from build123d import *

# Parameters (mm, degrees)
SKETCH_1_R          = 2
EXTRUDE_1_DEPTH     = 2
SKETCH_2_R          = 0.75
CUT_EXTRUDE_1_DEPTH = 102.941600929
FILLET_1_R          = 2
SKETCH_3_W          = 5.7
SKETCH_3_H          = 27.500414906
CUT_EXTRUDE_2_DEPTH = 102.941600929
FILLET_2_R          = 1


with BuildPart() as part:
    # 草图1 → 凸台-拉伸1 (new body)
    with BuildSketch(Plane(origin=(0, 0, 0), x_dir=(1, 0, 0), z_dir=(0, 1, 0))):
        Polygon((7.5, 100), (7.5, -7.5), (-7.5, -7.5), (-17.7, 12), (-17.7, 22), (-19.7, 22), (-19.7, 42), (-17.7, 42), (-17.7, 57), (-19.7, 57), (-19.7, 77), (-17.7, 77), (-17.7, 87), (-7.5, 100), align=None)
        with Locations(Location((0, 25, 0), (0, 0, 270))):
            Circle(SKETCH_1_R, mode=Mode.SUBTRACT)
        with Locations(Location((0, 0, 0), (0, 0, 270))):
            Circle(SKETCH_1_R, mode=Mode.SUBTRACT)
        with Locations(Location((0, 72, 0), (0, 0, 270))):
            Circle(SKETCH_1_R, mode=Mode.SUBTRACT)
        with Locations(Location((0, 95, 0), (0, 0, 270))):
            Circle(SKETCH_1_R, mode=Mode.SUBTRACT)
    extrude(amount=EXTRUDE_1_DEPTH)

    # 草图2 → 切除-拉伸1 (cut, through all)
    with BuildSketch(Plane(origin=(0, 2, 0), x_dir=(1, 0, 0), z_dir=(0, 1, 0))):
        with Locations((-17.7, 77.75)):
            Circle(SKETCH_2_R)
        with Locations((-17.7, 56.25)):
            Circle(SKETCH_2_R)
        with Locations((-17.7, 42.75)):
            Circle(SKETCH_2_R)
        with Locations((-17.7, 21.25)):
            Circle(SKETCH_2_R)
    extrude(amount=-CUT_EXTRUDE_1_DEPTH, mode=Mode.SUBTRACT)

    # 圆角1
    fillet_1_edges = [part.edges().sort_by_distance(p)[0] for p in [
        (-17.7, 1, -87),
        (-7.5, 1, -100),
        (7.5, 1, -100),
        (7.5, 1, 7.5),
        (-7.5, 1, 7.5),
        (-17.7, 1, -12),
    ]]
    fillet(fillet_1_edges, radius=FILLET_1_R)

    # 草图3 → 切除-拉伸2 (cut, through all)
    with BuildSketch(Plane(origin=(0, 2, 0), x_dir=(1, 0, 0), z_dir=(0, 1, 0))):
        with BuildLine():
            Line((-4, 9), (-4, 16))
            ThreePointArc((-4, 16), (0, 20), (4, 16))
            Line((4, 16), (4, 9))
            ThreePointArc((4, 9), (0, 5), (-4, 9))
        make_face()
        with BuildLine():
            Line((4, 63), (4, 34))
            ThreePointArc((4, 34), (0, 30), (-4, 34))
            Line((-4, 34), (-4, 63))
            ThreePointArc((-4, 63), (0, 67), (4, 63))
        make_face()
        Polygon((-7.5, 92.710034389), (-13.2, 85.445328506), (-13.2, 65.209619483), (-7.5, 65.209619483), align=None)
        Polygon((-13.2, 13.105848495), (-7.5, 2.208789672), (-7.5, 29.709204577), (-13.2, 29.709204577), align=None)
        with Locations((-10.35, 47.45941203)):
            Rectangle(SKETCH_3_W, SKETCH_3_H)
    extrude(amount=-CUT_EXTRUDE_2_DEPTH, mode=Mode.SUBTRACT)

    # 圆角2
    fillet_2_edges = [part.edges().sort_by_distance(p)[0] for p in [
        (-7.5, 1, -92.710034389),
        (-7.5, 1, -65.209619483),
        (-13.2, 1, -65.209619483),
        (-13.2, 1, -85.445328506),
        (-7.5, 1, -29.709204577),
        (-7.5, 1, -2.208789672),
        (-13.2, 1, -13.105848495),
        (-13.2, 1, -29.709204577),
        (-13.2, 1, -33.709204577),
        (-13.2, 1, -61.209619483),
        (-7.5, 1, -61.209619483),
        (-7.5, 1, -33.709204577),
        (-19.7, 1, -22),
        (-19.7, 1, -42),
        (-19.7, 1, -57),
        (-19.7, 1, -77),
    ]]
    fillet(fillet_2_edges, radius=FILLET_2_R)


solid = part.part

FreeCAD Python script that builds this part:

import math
import FreeCAD as App
import Part
import Sketcher
from FreeCAD import Vector


def edges_at(feature, points):
    """Names of the edges that pass closest to the given points."""
    edges = feature.Shape.Edges
    near = lambda p: min(range(len(edges)), key=lambda i: edges[i].distToShape(Part.Vertex(*p))[0])
    return sorted({f"Edge{near(p) + 1}" for p in points})


def add_polygon(sketch, points):
    """Adds a closed chain of lines whose ends are joined by coincident constraints."""
    first, n = sketch.GeometryCount, len(points)
    for a, b in zip(points, points[1:] + points[:1]):
        sketch.addGeometry(Part.LineSegment(App.Vector(*a, 0), App.Vector(*b, 0)), False)
    for i in range(n):
        sketch.addConstraint(Sketcher.Constraint("Coincident", first + i, 2, first + (i + 1) % n, 1))

doc = App.newDocument("Part")
body = doc.addObject("PartDesign::Body", "Body")

# Sketch on XZ plane
sketch1 = doc.addObject("Sketcher::SketchObject", "Sketch")
body.addObject(sketch1)
sketch1.AttachmentSupport = (doc.XZ_Plane, [""])
sketch1.MapMode = "FlatFace"
add_polygon(sketch1, [(7.5, 7.5), (7.5, -100), (-7.5, -100), (-17.7, -87), (-17.7, -77), (-19.7, -77), (-19.7, -57), (-17.7, -57), (-17.7, -42), (-19.7, -42), (-19.7, -22), (-17.7, -22), (-17.7, -12), (-7.5, 7.5)])  # lines 0-13
sketch1.addGeometry(Part.Circle(Vector(0, 0, 0), Vector(0, 0, 1), 2), False)  # 14
sketch1.addGeometry(Part.Circle(Vector(0, -25, 0), Vector(0, 0, 1), 2), False)  # 15
sketch1.addGeometry(Part.Circle(Vector(0, -72, 0), Vector(0, 0, 1), 2), False)  # 16
sketch1.addGeometry(Part.Circle(Vector(0, -95, 0), Vector(0, 0, 1), 2), False)  # 17
sketch1.addConstraint(Sketcher.Constraint("Vertical", 0))
sketch1.addConstraint(Sketcher.Constraint("Horizontal", 1))
sketch1.addConstraint(Sketcher.Constraint("Vertical", 3))
sketch1.addConstraint(Sketcher.Constraint("Horizontal", 4))
sketch1.addConstraint(Sketcher.Constraint("Vertical", 5))
sketch1.addConstraint(Sketcher.Constraint("Horizontal", 6))
sketch1.addConstraint(Sketcher.Constraint("Vertical", 7))
sketch1.addConstraint(Sketcher.Constraint("Horizontal", 8))
sketch1.addConstraint(Sketcher.Constraint("Vertical", 9))
sketch1.addConstraint(Sketcher.Constraint("Horizontal", 10))
sketch1.addConstraint(Sketcher.Constraint("Vertical", 11))
sketch1.addConstraint(Sketcher.Constraint("Horizontal", 13))
sketch1.addConstraint(Sketcher.Constraint("Coincident", 14, 3, -1, 1))
sketch1.addConstraint(Sketcher.Constraint("Equal", 14, 15))
sketch1.addConstraint(Sketcher.Constraint("Equal", 15, 16))
sketch1.addConstraint(Sketcher.Constraint("Equal", 16, 17))
sketch1.addConstraint(Sketcher.Constraint("PointOnObject", 15, 3, -2))
sketch1.addConstraint(Sketcher.Constraint("PointOnObject", 16, 3, -2))
sketch1.addConstraint(Sketcher.Constraint("PointOnObject", 17, 3, -2))
sketch1.addConstraint(Sketcher.Constraint("Vertical", 3, 2, 6, 2))
sketch1.addConstraint(Sketcher.Constraint("Vertical", 5, 2, 8, 2))
sketch1.addConstraint(Sketcher.Constraint("Vertical", 7, 2, 10, 2))
sketch1.addConstraint(Sketcher.Constraint("Vertical", 1, 2, 12, 2))
sketch1.addConstraint(Sketcher.Constraint("Equal", 13, 7))
sketch1.addConstraint(Sketcher.Constraint("Equal", 5, 9))
sketch1.addConstraint(Sketcher.Constraint("Equal", 3, 11))
sketch1.addConstraint(Sketcher.Constraint("Diameter", 14, 4.0))
sketch1.addConstraint(Sketcher.Constraint("DistanceX", 1, 2, 1, 1, 15.0))
sketch1.addConstraint(Sketcher.Constraint("DistanceX", 4, 2, 4, 1, 2.0))
sketch1.addConstraint(Sketcher.Constraint("DistanceY", 3, 1, 3, 2, 10.0))
sketch1.addConstraint(Sketcher.Constraint("DistanceY", 5, 1, 5, 2, 20.0))
sketch1.addConstraint(Sketcher.Constraint("DistanceY", 0, 2, 0, 1, 107.5))
sketch1.addConstraint(Sketcher.Constraint("DistanceY", 15, 3, -1, 1, 25.0))
sketch1.addConstraint(Sketcher.Constraint("DistanceY", 16, 3, -1, 1, 72.0))
sketch1.addConstraint(Sketcher.Constraint("DistanceY", 17, 3, -1, 1, 95.0))
sketch1.addConstraint(Sketcher.Constraint("DistanceY", 0, 2, -1, 1, 100.0))
sketch1.addConstraint(Sketcher.Constraint("DistanceY", 2, 2, -1, 1, 87.0))
sketch1.addConstraint(Sketcher.Constraint("DistanceX", -1, 1, 0, 2, 7.5))
sketch1.addConstraint(Sketcher.Constraint("DistanceX", 2, 2, -1, 1, 17.7))
pad1 = doc.addObject("PartDesign::Pad", "Pad")
body.addObject(pad1)
pad1.Profile = sketch1
pad1.Length = 2
pad1.Reversed = True

# Sketch on XZ plane
sketch2 = doc.addObject("Sketcher::SketchObject", "Sketch001")
body.addObject(sketch2)
sketch2.AttachmentSupport = (doc.XZ_Plane, [""])
sketch2.MapMode = "FlatFace"
sketch2.AttachmentOffset = App.Placement(Vector(0, 0, -2), App.Rotation())
sketch2.addGeometry(Part.Circle(Vector(-17.7, -77.8, 0), Vector(0, 0, 1), 0.8), False)
sketch2.addGeometry(Part.Circle(Vector(-17.7, -56.2, 0), Vector(0, 0, 1), 0.8), False)
sketch2.addGeometry(Part.Circle(Vector(-17.7, -42.8, 0), Vector(0, 0, 1), 0.8), False)
sketch2.addGeometry(Part.Circle(Vector(-17.7, -21.2, 0), Vector(0, 0, 1), 0.8), False)
sketch2.addConstraint(Sketcher.Constraint("Equal", 0, 1))
sketch2.addConstraint(Sketcher.Constraint("Equal", 1, 2))
sketch2.addConstraint(Sketcher.Constraint("Equal", 2, 3))
sketch2.addConstraint(Sketcher.Constraint("Vertical", 0, 3, 1, 3))
sketch2.addConstraint(Sketcher.Constraint("Vertical", 1, 3, 2, 3))
sketch2.addConstraint(Sketcher.Constraint("Vertical", 2, 3, 3, 3))
sketch2.addConstraint(Sketcher.Constraint("Diameter", 0, 1.5))
sketch2.addConstraint(Sketcher.Constraint("DistanceY", 0, 3, 2, 3, 35.0))
sketch2.addConstraint(Sketcher.Constraint("DistanceY", 1, 3, 3, 3, 35.0))
sketch2.addConstraint(Sketcher.Constraint("DistanceX", 0, 3, -1, 1, 17.7))
sketch2.addConstraint(Sketcher.Constraint("DistanceY", 0, 3, 1, 3, 21.5))
sketch2.addConstraint(Sketcher.Constraint("DistanceY", 0, 3, -1, 1, 77.75))
pocket1 = doc.addObject("PartDesign::Pocket", "Pocket")
body.addObject(pocket1)
pocket1.Profile = sketch2
pocket1.Type = "ThroughAll"
pocket1.Reversed = True
doc.recompute()

fillet = doc.addObject("PartDesign::Fillet", "Fillet")
body.addObject(fillet)
fillet.Base = (pocket1, edges_at(pocket1, [
    (-17.7, 1, -87),
    (-7.5, 1, -100),
    (7.5, 1, -100),
    (7.5, 1, 7.5),
    (-7.5, 1, 7.5),
    (-17.7, 1, -12),
]))
fillet.Radius = 2

# Sketch on XZ plane
sketch3 = doc.addObject("Sketcher::SketchObject", "Sketch002")
body.addObject(sketch3)
sketch3.AttachmentSupport = (doc.XZ_Plane, [""])
sketch3.MapMode = "FlatFace"
sketch3.AttachmentOffset = App.Placement(Vector(0, 0, -2), App.Rotation())
sketch3.addGeometry(Part.LineSegment(Vector(-4, -16, 0), Vector(-4, -9, 0)), False)  # 0
sketch3.addGeometry(Part.ArcOfCircle(Part.Circle(Vector(0, -9, 0), Vector(0, 0, 1), 4), math.radians(0), math.radians(180)), False)  # 1
sketch3.addGeometry(Part.LineSegment(Vector(4, -9, 0), Vector(4, -16, 0)), False)  # 2
sketch3.addGeometry(Part.ArcOfCircle(Part.Circle(Vector(0, -16, 0), Vector(0, 0, 1), 4), math.radians(180), math.radians(360)), False)  # 3
sketch3.addGeometry(Part.LineSegment(Vector(4, -34, 0), Vector(4, -63, 0)), False)  # 4
sketch3.addGeometry(Part.ArcOfCircle(Part.Circle(Vector(0, -63, 0), Vector(0, 0, 1), 4), math.radians(180), math.radians(360)), False)  # 5
sketch3.addGeometry(Part.LineSegment(Vector(-4, -63, 0), Vector(-4, -34, 0)), False)  # 6
sketch3.addGeometry(Part.ArcOfCircle(Part.Circle(Vector(0, -34, 0), Vector(0, 0, 1), 4), math.radians(0), math.radians(180)), False)  # 7
add_polygon(sketch3, [(-7.5, -92.7), (-13.2, -85.4), (-13.2, -65.2), (-7.5, -65.2)])  # lines 8-11
add_polygon(sketch3, [(-13.2, -13.1), (-7.5, -2.2), (-7.5, -29.7), (-13.2, -29.7)])  # lines 12-15
add_polygon(sketch3, [(-13.2, -61.2), (-13.2, -33.7), (-7.5, -33.7), (-7.5, -61.2)])  # lines 16-19
sketch3.addConstraint(Sketcher.Constraint("Tangent", 0, 2, 1, 2))
sketch3.addConstraint(Sketcher.Constraint("Tangent", 1, 1, 2, 1))
sketch3.addConstraint(Sketcher.Constraint("Tangent", 2, 2, 3, 2))
sketch3.addConstraint(Sketcher.Constraint("Tangent", 3, 1, 0, 1))
sketch3.addConstraint(Sketcher.Constraint("Tangent", 4, 2, 5, 2))
sketch3.addConstraint(Sketcher.Constraint("Tangent", 5, 1, 6, 1))
sketch3.addConstraint(Sketcher.Constraint("Tangent", 6, 2, 7, 2))
sketch3.addConstraint(Sketcher.Constraint("Tangent", 7, 1, 4, 1))
sketch3.addConstraint(Sketcher.Constraint("Vertical", 0))
sketch3.addConstraint(Sketcher.Constraint("Vertical", 2))
sketch3.addConstraint(Sketcher.Constraint("Vertical", 4))
sketch3.addConstraint(Sketcher.Constraint("Vertical", 6))
sketch3.addConstraint(Sketcher.Constraint("Vertical", 9))
sketch3.addConstraint(Sketcher.Constraint("Horizontal", 10))
sketch3.addConstraint(Sketcher.Constraint("Vertical", 11))
sketch3.addConstraint(Sketcher.Constraint("Vertical", 13))
sketch3.addConstraint(Sketcher.Constraint("Horizontal", 14))
sketch3.addConstraint(Sketcher.Constraint("Vertical", 15))
sketch3.addConstraint(Sketcher.Constraint("Vertical", 16))
sketch3.addConstraint(Sketcher.Constraint("Horizontal", 17))
sketch3.addConstraint(Sketcher.Constraint("Vertical", 18))
sketch3.addConstraint(Sketcher.Constraint("Horizontal", 19))
sketch3.addConstraint(Sketcher.Constraint("Equal", 3, 5))
sketch3.addConstraint(Sketcher.Constraint("PointOnObject", 1, 3, -2))
sketch3.addConstraint(Sketcher.Constraint("PointOnObject", 5, 3, -2))
sketch3.addConstraint(Sketcher.Constraint("Vertical", 11, 2, 12, 2))
sketch3.addConstraint(Sketcher.Constraint("Vertical", 9, 2, 14, 2))
sketch3.addConstraint(Sketcher.Constraint("Vertical", 15, 2, 16, 2))
sketch3.addConstraint(Sketcher.Constraint("Vertical", 13, 2, 17, 2))
sketch3.addConstraint(Sketcher.Constraint("Equal", 11, 13))
sketch3.addConstraint(Sketcher.Constraint("Equal", 13, 16))
sketch3.addConstraint(Sketcher.Constraint("Radius", 1, 4.0))
sketch3.addConstraint(Sketcher.Constraint("DistanceY", 0, 1, 0, 2, 7.0))
sketch3.addConstraint(Sketcher.Constraint("DistanceY", 4, 2, 4, 1, 29.0))
sketch3.addConstraint(Sketcher.Constraint("DistanceX", 10, 1, 10, 2, 5.7))
sketch3.addConstraint(Sketcher.Constraint("DistanceY", 1, 3, -1, 1, 9.0))
sketch3.addConstraint(Sketcher.Constraint("DistanceY", 5, 3, -1, 1, 63.0))
sketch3.addConstraint(Sketcher.Constraint("DistanceY", 16, 2, 14, 2, 4.0))
sketch3.addConstraint(Sketcher.Constraint("DistanceY", 10, 2, 18, 2, 4.0))
sketch3.addConstraint(Sketcher.Constraint("DistanceX", 8, 2, -1, 1, 13.2))
sketch3.addConstraint(Sketcher.Constraint("Distance", 12, 12.2978))
sketch3.addConstraint(Sketcher.Constraint("DistanceY", 9, 1, 9, 2, 20.235709))
sketch3.addConstraint(Sketcher.Constraint("DistanceY", 11, 2, 11, 1, 27.500415))
sketch3.addConstraint(Sketcher.Constraint("DistanceY", 8, 2, -1, 1, 85.445329))
pocket2 = doc.addObject("PartDesign::Pocket", "Pocket001")
body.addObject(pocket2)
pocket2.Profile = sketch3
pocket2.Type = "ThroughAll"
pocket2.Reversed = True
doc.recompute()

fillet2 = doc.addObject("PartDesign::Fillet", "Fillet001")
body.addObject(fillet2)
fillet2.Base = (pocket2, edges_at(pocket2, [
    (-7.5, 1, -92.71),
    (-7.5, 1, -65.21),
    (-13.2, 1, -65.21),
    (-13.2, 1, -85.445),
    (-7.5, 1, -29.709),
    (-7.5, 1, -2.209),
    (-13.2, 1, -13.106),
    (-13.2, 1, -29.709),
    (-13.2, 1, -33.709),
    (-13.2, 1, -61.21),
    (-7.5, 1, -61.21),
    (-7.5, 1, -33.709),
    (-19.7, 1, -22),
    (-19.7, 1, -42),
    (-19.7, 1, -57),
    (-19.7, 1, -77),
]))
fillet2.Radius = 1

doc.recompute()
